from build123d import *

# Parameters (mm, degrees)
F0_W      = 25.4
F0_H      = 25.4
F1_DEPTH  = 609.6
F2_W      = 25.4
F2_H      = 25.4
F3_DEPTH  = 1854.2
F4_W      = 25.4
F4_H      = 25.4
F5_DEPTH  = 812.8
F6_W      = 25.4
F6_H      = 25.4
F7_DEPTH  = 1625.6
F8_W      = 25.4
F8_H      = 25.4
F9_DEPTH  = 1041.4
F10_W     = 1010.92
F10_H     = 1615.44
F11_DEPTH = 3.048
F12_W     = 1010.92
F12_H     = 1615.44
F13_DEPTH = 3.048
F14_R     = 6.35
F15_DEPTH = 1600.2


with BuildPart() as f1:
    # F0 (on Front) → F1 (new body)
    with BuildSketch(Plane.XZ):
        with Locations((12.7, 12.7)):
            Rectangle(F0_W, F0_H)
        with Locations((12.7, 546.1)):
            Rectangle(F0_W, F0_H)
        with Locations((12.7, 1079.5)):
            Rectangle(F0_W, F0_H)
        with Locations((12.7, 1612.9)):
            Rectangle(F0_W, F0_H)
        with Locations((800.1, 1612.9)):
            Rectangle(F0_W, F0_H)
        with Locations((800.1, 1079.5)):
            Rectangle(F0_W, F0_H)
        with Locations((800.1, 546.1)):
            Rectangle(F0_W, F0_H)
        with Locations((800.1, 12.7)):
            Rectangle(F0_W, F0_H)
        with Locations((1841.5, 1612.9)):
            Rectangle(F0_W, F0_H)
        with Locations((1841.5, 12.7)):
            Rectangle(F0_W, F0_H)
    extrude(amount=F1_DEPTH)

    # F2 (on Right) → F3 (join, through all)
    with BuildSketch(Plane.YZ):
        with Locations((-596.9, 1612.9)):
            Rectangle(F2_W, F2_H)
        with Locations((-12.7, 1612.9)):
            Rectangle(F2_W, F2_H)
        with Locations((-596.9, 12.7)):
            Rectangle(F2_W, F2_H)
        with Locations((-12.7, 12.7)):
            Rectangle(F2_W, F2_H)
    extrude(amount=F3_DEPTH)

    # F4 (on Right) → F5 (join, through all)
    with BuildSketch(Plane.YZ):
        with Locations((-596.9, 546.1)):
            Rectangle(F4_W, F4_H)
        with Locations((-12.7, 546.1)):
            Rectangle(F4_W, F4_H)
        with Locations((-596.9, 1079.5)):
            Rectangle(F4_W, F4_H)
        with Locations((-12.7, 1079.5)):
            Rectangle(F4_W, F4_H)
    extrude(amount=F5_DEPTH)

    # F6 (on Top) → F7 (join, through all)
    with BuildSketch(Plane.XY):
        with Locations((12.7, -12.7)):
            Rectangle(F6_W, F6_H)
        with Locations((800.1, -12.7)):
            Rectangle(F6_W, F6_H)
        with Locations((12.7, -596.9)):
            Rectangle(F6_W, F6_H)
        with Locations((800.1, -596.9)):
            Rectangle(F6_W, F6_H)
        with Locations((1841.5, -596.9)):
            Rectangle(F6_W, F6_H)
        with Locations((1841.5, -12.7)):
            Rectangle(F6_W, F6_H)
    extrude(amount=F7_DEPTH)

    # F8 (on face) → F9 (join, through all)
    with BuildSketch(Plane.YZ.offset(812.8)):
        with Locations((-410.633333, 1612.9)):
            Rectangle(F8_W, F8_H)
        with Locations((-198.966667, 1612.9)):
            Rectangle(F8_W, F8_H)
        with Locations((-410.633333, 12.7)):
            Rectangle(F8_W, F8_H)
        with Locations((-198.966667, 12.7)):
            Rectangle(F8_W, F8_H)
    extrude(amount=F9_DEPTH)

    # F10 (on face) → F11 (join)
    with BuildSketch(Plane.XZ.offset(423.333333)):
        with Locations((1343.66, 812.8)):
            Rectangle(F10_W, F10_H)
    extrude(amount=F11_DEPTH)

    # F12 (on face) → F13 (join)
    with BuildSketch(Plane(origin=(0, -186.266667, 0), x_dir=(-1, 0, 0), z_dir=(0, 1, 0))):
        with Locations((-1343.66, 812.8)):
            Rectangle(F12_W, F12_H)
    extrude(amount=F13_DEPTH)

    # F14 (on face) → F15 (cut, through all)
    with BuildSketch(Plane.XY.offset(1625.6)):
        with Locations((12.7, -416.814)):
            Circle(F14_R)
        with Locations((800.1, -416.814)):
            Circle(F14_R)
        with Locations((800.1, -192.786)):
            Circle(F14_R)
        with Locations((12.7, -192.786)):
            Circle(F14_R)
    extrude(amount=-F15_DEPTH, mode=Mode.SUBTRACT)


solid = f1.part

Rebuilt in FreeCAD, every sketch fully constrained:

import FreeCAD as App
import Part
import Sketcher

V = App.Vector
Q = App.Units.Quantity

doc = App.newDocument("Part")
params = doc.addObject("Spreadsheet::Sheet", "Params")
for row, (alias, value) in enumerate([
    ("sketch1_width", "1 in"),
    ("pad1_length", "24 in"),
    ("sketch2_width", "1 in"),
    ("pad2_length", "73 in"),
    ("sketch3_width", "1 in"),
    ("pad3_length", "32 in"),
    ("sketch4_width", "1 in"),
    ("pad4_length", "64 in"),
    ("sketch5_width", "1 in"),
    ("pad5_length", "41 in"),
    ("sketch6_width", "39.8 in"),
    ("sketch6_height", "63.6 in"),
    ("pad6_length", "0.12 in"),
    ("sketch7_width", "39.8 in"),
    ("sketch7_height", "63.6 in"),
    ("pad7_length", "0.12 in"),
    ("sketch8_diameter", "0.5 in"),
    ("pocket1_length", "63 in"),
], start=1):
    params.set(f"A{row}", alias)
    params.set(f"B{row}", "=" + value)
    params.setAlias(f"B{row}", alias)

body = doc.addObject("PartDesign::Body", "Body")
body.AllowCompound = True

# Sketch on XZ plane
sketch1 = body.newObject("Sketcher::SketchObject", "Sketch")
sketch1.AttachmentSupport = (doc.getObject("XZ_Plane"), [""])
sketch1.MapMode = "FlatFace"
sketch1.addGeometry([
    Part.LineSegment(V(0, 25.4, 0), V(0, 0, 0)),  # 0
    Part.LineSegment(V(0, 0, 0), V(25.4, 0, 0)),  # 1
    Part.LineSegment(V(25.4, 0, 0), V(25.4, 25.4, 0)),  # 2
    Part.LineSegment(V(25.4, 25.4, 0), V(0, 25.4, 0)),  # 3
    Part.LineSegment(V(0, 558.8, 0), V(0, 533.4, 0)),  # 4
    Part.LineSegment(V(0, 533.4, 0), V(25.4, 533.4, 0)),  # 5
    Part.LineSegment(V(25.4, 533.4, 0), V(25.4, 558.8, 0)),  # 6
    Part.LineSegment(V(25.4, 558.8, 0), V(0, 558.8, 0)),  # 7
    Part.LineSegment(V(0, 1092.2, 0), V(0, 1066.8, 0)),  # 8
    Part.LineSegment(V(0, 1066.8, 0), V(25.4, 1066.8, 0)),  # 9
    Part.LineSegment(V(25.4, 1066.8, 0), V(25.4, 1092.2, 0)),  # 10
    Part.LineSegment(V(25.4, 1092.2, 0), V(0, 1092.2, 0)),  # 11
    Part.LineSegment(V(0, 1625.6, 0), V(0, 1600.2, 0)),  # 12
    Part.LineSegment(V(0, 1600.2, 0), V(25.4, 1600.2, 0)),  # 13
    Part.LineSegment(V(25.4, 1600.2, 0), V(25.4, 1625.6, 0)),  # 14
    Part.LineSegment(V(25.4, 1625.6, 0), V(0, 1625.6, 0)),  # 15
    Part.LineSegment(V(787.4, 1625.6, 0), V(787.4, 1600.2, 0)),  # 16
    Part.LineSegment(V(787.4, 1600.2, 0), V(812.8, 1600.2, 0)),  # 17
    Part.LineSegment(V(812.8, 1600.2, 0), V(812.8, 1625.6, 0)),  # 18
    Part.LineSegment(V(812.8, 1625.6, 0), V(787.4, 1625.6, 0)),  # 19
    Part.LineSegment(V(787.4, 1092.2, 0), V(787.4, 1066.8, 0)),  # 20
    Part.LineSegment(V(787.4, 1066.8, 0), V(812.8, 1066.8, 0)),  # 21
    Part.LineSegment(V(812.8, 1066.8, 0), V(812.8, 1092.2, 0)),  # 22
    Part.LineSegment(V(812.8, 1092.2, 0), V(787.4, 1092.2, 0)),  # 23
    Part.LineSegment(V(787.4, 558.8, 0), V(787.4, 533.4, 0)),  # 24
    Part.LineSegment(V(787.4, 533.4, 0), V(812.8, 533.4, 0)),  # 25
    Part.LineSegment(V(812.8, 533.4, 0), V(812.8, 558.8, 0)),  # 26
    Part.LineSegment(V(812.8, 558.8, 0), V(787.4, 558.8, 0)),  # 27
    Part.LineSegment(V(787.4, 25.4, 0), V(787.4, 0, 0)),  # 28
    Part.LineSegment(V(787.4, 0, 0), V(812.8, 0, 0)),  # 29
    Part.LineSegment(V(812.8, 0, 0), V(812.8, 25.4, 0)),  # 30
    Part.LineSegment(V(812.8, 25.4, 0), V(787.4, 25.4, 0)),  # 31
    Part.LineSegment(V(1828.8, 1625.6, 0), V(1828.8, 1600.2, 0)),  # 32
    Part.LineSegment(V(1828.8, 1600.2, 0), V(1854.2, 1600.2, 0)),  # 33
    Part.LineSegment(V(1854.2, 1600.2, 0), V(1854.2, 1625.6, 0)),  # 34
    Part.LineSegment(V(1854.2, 1625.6, 0), V(1828.8, 1625.6, 0)),  # 35
    Part.LineSegment(V(1828.8, 25.4, 0), V(1828.8, 0, 0)),  # 36
    Part.LineSegment(V(1828.8, 0, 0), V(1854.2, 0, 0)),  # 37
    Part.LineSegment(V(1854.2, 0, 0), V(1854.2, 25.4, 0)),  # 38
    Part.LineSegment(V(1854.2, 25.4, 0), V(1828.8, 25.4, 0)),  # 39
], False)
sketch1.addConstraint([
    Sketcher.Constraint("Coincident", 0, 2, 1, 1),
    Sketcher.Constraint("Coincident", 1, 2, 2, 1),
    Sketcher.Constraint("Coincident", 2, 2, 3, 1),
    Sketcher.Constraint("Coincident", 3, 2, 0, 1),
    Sketcher.Constraint("Coincident", 4, 2, 5, 1),
    Sketcher.Constraint("Coincident", 5, 2, 6, 1),
    Sketcher.Constraint("Coincident", 6, 2, 7, 1),
    Sketcher.Constraint("Coincident", 7, 2, 4, 1),
    Sketcher.Constraint("Coincident", 8, 2, 9, 1),
    Sketcher.Constraint("Coincident", 9, 2, 10, 1),
    Sketcher.Constraint("Coincident", 10, 2, 11, 1),
    Sketcher.Constraint("Coincident", 11, 2, 8, 1),
    Sketcher.Constraint("Coincident", 12, 2, 13, 1),
    Sketcher.Constraint("Coincident", 13, 2, 14, 1),
    Sketcher.Constraint("Coincident", 14, 2, 15, 1),
    Sketcher.Constraint("Coincident", 15, 2, 12, 1),
    Sketcher.Constraint("Coincident", 16, 2, 17, 1),
    Sketcher.Constraint("Coincident", 17, 2, 18, 1),
    Sketcher.Constraint("Coincident", 18, 2, 19, 1),
    Sketcher.Constraint("Coincident", 19, 2, 16, 1),
    Sketcher.Constraint("Coincident", 20, 2, 21, 1),
    Sketcher.Constraint("Coincident", 21, 2, 22, 1),
    Sketcher.Constraint("Coincident", 22, 2, 23, 1),
    Sketcher.Constraint("Coincident", 23, 2, 20, 1),
    Sketcher.Constraint("Coincident", 24, 2, 25, 1),
    Sketcher.Constraint("Coincident", 25, 2, 26, 1),
    Sketcher.Constraint("Coincident", 26, 2, 27, 1),
    Sketcher.Constraint("Coincident", 27, 2, 24, 1),
    Sketcher.Constraint("Coincident", 28, 2, 29, 1),
    Sketcher.Constraint("Coincident", 29, 2, 30, 1),
    Sketcher.Constraint("Coincident", 30, 2, 31, 1),
    Sketcher.Constraint("Coincident", 31, 2, 28, 1),
    Sketcher.Constraint("Coincident", 32, 2, 33, 1),
    Sketcher.Constraint("Coincident", 33, 2, 34, 1),
    Sketcher.Constraint("Coincident", 34, 2, 35, 1),
    Sketcher.Constraint("Coincident", 35, 2, 32, 1),
    Sketcher.Constraint("Coincident", 36, 2, 37, 1),
    Sketcher.Constraint("Coincident", 37, 2, 38, 1),
    Sketcher.Constraint("Coincident", 38, 2, 39, 1),
    Sketcher.Constraint("Coincident", 39, 2, 36, 1),
    Sketcher.Constraint("Vertical", 0),
    Sketcher.Constraint("Horizontal", 1),
    Sketcher.Constraint("Vertical", 2),
    Sketcher.Constraint("Horizontal", 3),
    Sketcher.Constraint("Vertical", 4),
    Sketcher.Constraint("Horizontal", 5),
    Sketcher.Constraint("Vertical", 6),
    Sketcher.Constraint("Horizontal", 7),
    Sketcher.Constraint("Vertical", 8),
    Sketcher.Constraint("Horizontal", 9),
    Sketcher.Constraint("Vertical", 10),
    Sketcher.Constraint("Horizontal", 11),
    Sketcher.Constraint("Vertical", 12),
    Sketcher.Constraint("Horizontal", 13),
    Sketcher.Constraint("Vertical", 14),
    Sketcher.Constraint("Horizontal", 15),
    Sketcher.Constraint("Vertical", 16),
    Sketcher.Constraint("Horizontal", 17),
    Sketcher.Constraint("Vertical", 18),
    Sketcher.Constraint("Horizontal", 19),
    Sketcher.Constraint("Vertical", 20),
    Sketcher.Constraint("Horizontal", 21),
    Sketcher.Constraint("Vertical", 22),
    Sketcher.Constraint("Horizontal", 23),
    Sketcher.Constraint("Vertical", 24),
    Sketcher.Constraint("Horizontal", 25),
    Sketcher.Constraint("Vertical", 26),
    Sketcher.Constraint("Horizontal", 27),
    Sketcher.Constraint("Vertical", 28),
    Sketcher.Constraint("Horizontal", 29),
    Sketcher.Constraint("Vertical", 30),
    Sketcher.Constraint("Horizontal", 31),
    Sketcher.Constraint("Vertical", 32),
    Sketcher.Constraint("Horizontal", 33),
    Sketcher.Constraint("Vertical", 34),
    Sketcher.Constraint("Horizontal", 35),
    Sketcher.Constraint("Vertical", 36),
    Sketcher.Constraint("Horizontal", 37),
    Sketcher.Constraint("Vertical", 38),
    Sketcher.Constraint("Horizontal", 39),
    Sketcher.Constraint("Coincident", 0, 2, -1, 1),
    Sketcher.Constraint("PointOnObject", 4, 2, -2),
    Sketcher.Constraint("PointOnObject", 8, 2, -2),
    Sketcher.Constraint("PointOnObject", 12, 2, -2),
    Sketcher.Constraint("PointOnObject", 28, 2, -1),
    Sketcher.Constraint("PointOnObject", 36, 2, -1),
    Sketcher.Constraint("Horizontal", 13, 2, 16, 2),
    Sketcher.Constraint("Horizontal", 15, 2, 18, 2),
    Sketcher.Constraint("Horizontal", 9, 2, 20, 2),
    Sketcher.Constraint("Horizontal", 11, 2, 22, 2),
    Sketcher.Constraint("Horizontal", 5, 2, 24, 2),
    Sketcher.Constraint("Horizontal", 7, 2, 26, 2),
    Sketcher.Constraint("Horizontal", 3, 2, 30, 2),
    Sketcher.Constraint("Horizontal", 17, 2, 32, 2),
    Sketcher.Constraint("Horizontal", 19, 2, 34, 2),
    Sketcher.Constraint("Horizontal", 31, 2, 38, 2),
    Sketcher.Constraint("Vertical", 2, 2, 5, 2),
    Sketcher.Constraint("Vertical", 6, 2, 9, 2),
    Sketcher.Constraint("Vertical", 10, 2, 13, 2),
    Sketcher.Constraint("Vertical", 19, 2, 20, 2),
    Sketcher.Constraint("Vertical", 18, 2, 21, 2),
    Sketcher.Constraint("Vertical", 23, 2, 24, 2),
    Sketcher.Constraint("Vertical", 22, 2, 25, 2),
    Sketcher.Constraint("Vertical", 27, 2, 28, 2),
    Sketcher.Constraint("Vertical", 26, 2, 29, 2),
    Sketcher.Constraint("Vertical", 35, 2, 36, 2),
    Sketcher.Constraint("Vertical", 34, 2, 37, 2),
    Sketcher.Constraint("Equal", 15, 17),
    Sketcher.Constraint("Equal", 31, 33),
    Sketcher.Constraint("Equal", 39, 0),
    Sketcher.Constraint("Equal", 2, 4),
    Sketcher.Constraint("Equal", 6, 8),
    Sketcher.Constraint("Equal", 10, 12),
    Sketcher.Constraint("DistanceX", 1, 1, 1, 2, Q("1 in")),
    Sketcher.Constraint("DistanceY", -1, 1, 4, 2, Q("21 in")),
    Sketcher.Constraint("DistanceY", -1, 1, 8, 2, Q("42 in")),
    Sketcher.Constraint("DistanceY", -1, 1, 12, 2, Q("63 in")),
    Sketcher.Constraint("DistanceX", -1, 1, 16, 2, Q("31 in")),
    Sketcher.Constraint("DistanceX", -1, 1, 32, 2, Q("72 in")),
])
sketch1.setExpression("Constraints[113]", "Params.sketch1_width")
pad1 = body.newObject("PartDesign::Pad", "Pad")
pad1.Profile = sketch1
pad1.setExpression("Length", "Params.pad1_length")

# Sketch on YZ plane
sketch2 = body.newObject("Sketcher::SketchObject", "Sketch001")
sketch2.AttachmentSupport = (doc.getObject("YZ_Plane"), [""])
sketch2.MapMode = "FlatFace"
sketch2.addGeometry([
    Part.LineSegment(V(-609.6, 1625.6, 0), V(-609.6, 1600.2, 0)),  # 0
    Part.LineSegment(V(-609.6, 1600.2, 0), V(-584.2, 1600.2, 0)),  # 1
    Part.LineSegment(V(-584.2, 1600.2, 0), V(-584.2, 1625.6, 0)),  # 2
    Part.LineSegment(V(-584.2, 1625.6, 0), V(-609.6, 1625.6, 0)),  # 3
    Part.LineSegment(V(-25.4, 1625.6, 0), V(-25.4, 1600.2, 0)),  # 4
    Part.LineSegment(V(-25.4, 1600.2, 0), V(0, 1600.2, 0)),  # 5
    Part.LineSegment(V(0, 1600.2, 0), V(0, 1625.6, 0)),  # 6
    Part.LineSegment(V(0, 1625.6, 0), V(-25.4, 1625.6, 0)),  # 7
    Part.LineSegment(V(-609.6, 25.4, 0), V(-609.6, 0, 0)),  # 8
    Part.LineSegment(V(-609.6, 0, 0), V(-584.2, 0, 0)),  # 9
    Part.LineSegment(V(-584.2, 0, 0), V(-584.2, 25.4, 0)),  # 10
    Part.LineSegment(V(-584.2, 25.4, 0), V(-609.6, 25.4, 0)),  # 11
    Part.LineSegment(V(-25.4, 25.4, 0), V(-25.4, 0, 0)),  # 12
    Part.LineSegment(V(-25.4, 0, 0), V(0, 0, 0)),  # 13
    Part.LineSegment(V(0, 0, 0), V(0, 25.4, 0)),  # 14
    Part.LineSegment(V(0, 25.4, 0), V(-25.4, 25.4, 0)),  # 15
], False)
sketch2.addConstraint([
    Sketcher.Constraint("Coincident", 0, 2, 1, 1),
    Sketcher.Constraint("Coincident", 1, 2, 2, 1),
    Sketcher.Constraint("Coincident", 2, 2, 3, 1),
    Sketcher.Constraint("Coincident", 3, 2, 0, 1),
    Sketcher.Constraint("Coincident", 4, 2, 5, 1),
    Sketcher.Constraint("Coincident", 5, 2, 6, 1),
    Sketcher.Constraint("Coincident", 6, 2, 7, 1),
    Sketcher.Constraint("Coincident", 7, 2, 4, 1),
    Sketcher.Constraint("Coincident", 8, 2, 9, 1),
    Sketcher.Constraint("Coincident", 9, 2, 10, 1),
    Sketcher.Constraint("Coincident", 10, 2, 11, 1),
    Sketcher.Constraint("Coincident", 11, 2, 8, 1),
    Sketcher.Constraint("Coincident", 12, 2, 13, 1),
    Sketcher.Constraint("Coincident", 13, 2, 14, 1),
    Sketcher.Constraint("Coincident", 14, 2, 15, 1),
    Sketcher.Constraint("Coincident", 15, 2, 12, 1),
    Sketcher.Constraint("Vertical", 0),
    Sketcher.Constraint("Horizontal", 1),
    Sketcher.Constraint("Vertical", 2),
    Sketcher.Constraint("Horizontal", 3),
    Sketcher.Constraint("Vertical", 4),
    Sketcher.Constraint("Horizontal", 5),
    Sketcher.Constraint("Vertical", 6),
    Sketcher.Constraint("Horizontal", 7),
    Sketcher.Constraint("Vertical", 8),
    Sketcher.Constraint("Horizontal", 9),
    Sketcher.Constraint("Vertical", 10),
    Sketcher.Constraint("Horizontal", 11),
    Sketcher.Constraint("Vertical", 12),
    Sketcher.Constraint("Horizontal", 13),
    Sketcher.Constraint("Vertical", 14),
    Sketcher.Constraint("Horizontal", 15),
    Sketcher.Constraint("Coincident", 13, 2, -1, 1),
    Sketcher.Constraint("PointOnObject", 5, 2, -2),
    Sketcher.Constraint("PointOnObject", 8, 2, -1),
    Sketcher.Constraint("Horizontal", 1, 2, 4, 2),
    Sketcher.Constraint("Horizontal", 3, 2, 6, 2),
    Sketcher.Constraint("Horizontal", 11, 2, 14, 2),
    Sketcher.Constraint("Vertical", 3, 2, 8, 2),
    Sketcher.Constraint("Vertical", 2, 2, 9, 2),
    Sketcher.Constraint("Vertical", 7, 2, 12, 2),
    Sketcher.Constraint("Equal", 3, 5),
    Sketcher.Constraint("Equal", 15, 0),
    Sketcher.Constraint("Equal", 6, 8),
    Sketcher.Constraint("DistanceX", 1, 1, 1, 2, Q("1 in")),
    Sketcher.Constraint("DistanceX", 0, 2, -1, 1, Q("24 in")),
    Sketcher.Constraint("DistanceY", -1, 1, 0, 2, Q("63 in")),
])
sketch2.setExpression("Constraints[44]", "Params.sketch2_width")
pad2 = body.newObject("PartDesign::Pad", "Pad001")
pad2.Profile = sketch2
pad2.setExpression("Length", "Params.pad2_length")

# Sketch on YZ plane
sketch3 = body.newObject("Sketcher::SketchObject", "Sketch002")
sketch3.AttachmentSupport = (doc.getObject("YZ_Plane"), [""])
sketch3.MapMode = "FlatFace"
sketch3.addGeometry([
    Part.LineSegment(V(-609.6, 558.8, 0), V(-609.6, 533.4, 0)),  # 0
    Part.LineSegment(V(-609.6, 533.4, 0), V(-584.2, 533.4, 0)),  # 1
    Part.LineSegment(V(-584.2, 533.4, 0), V(-584.2, 558.8, 0)),  # 2
    Part.LineSegment(V(-584.2, 558.8, 0), V(-609.6, 558.8, 0)),  # 3
    Part.LineSegment(V(-25.4, 558.8, 0), V(-25.4, 533.4, 0)),  # 4
    Part.LineSegment(V(-25.4, 533.4, 0), V(0, 533.4, 0)),  # 5
    Part.LineSegment(V(0, 533.4, 0), V(0, 558.8, 0)),  # 6
    Part.LineSegment(V(0, 558.8, 0), V(-25.4, 558.8, 0)),  # 7
    Part.LineSegment(V(-609.6, 1092.2, 0), V(-609.6, 1066.8, 0)),  # 8
    Part.LineSegment(V(-609.6, 1066.8, 0), V(-584.2, 1066.8, 0)),  # 9
    Part.LineSegment(V(-584.2, 1066.8, 0), V(-584.2, 1092.2, 0)),  # 10
    Part.LineSegment(V(-584.2, 1092.2, 0), V(-609.6, 1092.2, 0)),  # 11
    Part.LineSegment(V(-25.4, 1092.2, 0), V(-25.4, 1066.8, 0)),  # 12
    Part.LineSegment(V(-25.4, 1066.8, 0), V(0, 1066.8, 0)),  # 13
    Part.LineSegment(V(0, 1066.8, 0), V(0, 1092.2, 0)),  # 14
    Part.LineSegment(V(0, 1092.2, 0), V(-25.4, 1092.2, 0)),  # 15
], False)
sketch3.addConstraint([
    Sketcher.Constraint("Coincident", 0, 2, 1, 1),
    Sketcher.Constraint("Coincident", 1, 2, 2, 1),
    Sketcher.Constraint("Coincident", 2, 2, 3, 1),
    Sketcher.Constraint("Coincident", 3, 2, 0, 1),
    Sketcher.Constraint("Coincident", 4, 2, 5, 1),
    Sketcher.Constraint("Coincident", 5, 2, 6, 1),
    Sketcher.Constraint("Coincident", 6, 2, 7, 1),
    Sketcher.Constraint("Coincident", 7, 2, 4, 1),
    Sketcher.Constraint("Coincident", 8, 2, 9, 1),
    Sketcher.Constraint("Coincident", 9, 2, 10, 1),
    Sketcher.Constraint("Coincident", 10, 2, 11, 1),
    Sketcher.Constraint("Coincident", 11, 2, 8, 1),
    Sketcher.Constraint("Coincident", 12, 2, 13, 1),
    Sketcher.Constraint("Coincident", 13, 2, 14, 1),
    Sketcher.Constraint("Coincident", 14, 2, 15, 1),
    Sketcher.Constraint("Coincident", 15, 2, 12, 1),
    Sketcher.Constraint("Vertical", 0),
    Sketcher.Constraint("Horizontal", 1),
    Sketcher.Constraint("Vertical", 2),
    Sketcher.Constraint("Horizontal", 3),
    Sketcher.Constraint("Vertical", 4),
    Sketcher.Constraint("Horizontal", 5),
    Sketcher.Constraint("Vertical", 6),
    Sketcher.Constraint("Horizontal", 7),
    Sketcher.Constraint("Vertical", 8),
    Sketcher.Constraint("Horizontal", 9),
    Sketcher.Constraint("Vertical", 10),
    Sketcher.Constraint("Horizontal", 11),
    Sketcher.Constraint("Vertical", 12),
    Sketcher.Constraint("Horizontal", 13),
    Sketcher.Constraint("Vertical", 14),
    Sketcher.Constraint("Horizontal", 15),
    Sketcher.Constraint("PointOnObject", 5, 2, -2),
    Sketcher.Constraint("PointOnObject", 13, 2, -2),
    Sketcher.Constraint("Horizontal", 1, 2, 4, 2),
    Sketcher.Constraint("Horizontal", 3, 2, 6, 2),
    Sketcher.Constraint("Horizontal", 9, 2, 12, 2),
    Sketcher.Constraint("Horizontal", 11, 2, 14, 2),
    Sketcher.Constraint("Vertical", 3, 2, 8, 2),
    Sketcher.Constraint("Vertical", 2, 2, 9, 2),
    Sketcher.Constraint("Vertical", 7, 2, 12, 2),
    Sketcher.Constraint("Equal", 3, 5),
    Sketcher.Constraint("Equal", 15, 0),
    Sketcher.Constraint("Equal", 6, 8),
    Sketcher.Constraint("DistanceX", 1, 1, 1, 2, Q("1 in")),
    Sketcher.Constraint("DistanceX", 0, 2, -1, 1, Q("24 in")),
    Sketcher.Constraint("DistanceY", -1, 1, 0, 2, Q("21 in")),
    Sketcher.Constraint("DistanceY", -1, 1, 8, 2, Q("42 in")),
])
sketch3.setExpression("Constraints[44]", "Params.sketch3_width")
pad3 = body.newObject("PartDesign::Pad", "Pad002")
pad3.Profile = sketch3
pad3.setExpression("Length", "Params.pad3_length")

# Sketch on XY plane
sketch4 = body.newObject("Sketcher::SketchObject", "Sketch003")
sketch4.AttachmentSupport = (doc.getObject("XY_Plane"), [""])
sketch4.MapMode = "FlatFace"
sketch4.addGeometry([
    Part.LineSegment(V(0, 0, 0), V(0, -25.4, 0)),  # 0
    Part.LineSegment(V(0, -25.4, 0), V(25.4, -25.4, 0)),  # 1
    Part.LineSegment(V(25.4, -25.4, 0), V(25.4, 0, 0)),  # 2
    Part.LineSegment(V(25.4, 0, 0), V(0, 0, 0)),  # 3
    Part.LineSegment(V(787.4, 0, 0), V(787.4, -25.4, 0)),  # 4
    Part.LineSegment(V(787.4, -25.4, 0), V(812.8, -25.4, 0)),  # 5
    Part.LineSegment(V(812.8, -25.4, 0), V(812.8, 0, 0)),  # 6
    Part.LineSegment(V(812.8, 0, 0), V(787.4, 0, 0)),  # 7
    Part.LineSegment(V(0, -584.2, 0), V(0, -609.6, 0)),  # 8
    Part.LineSegment(V(0, -609.6, 0), V(25.4, -609.6, 0)),  # 9
    Part.LineSegment(V(25.4, -609.6, 0), V(25.4, -584.2, 0)),  # 10
    Part.LineSegment(V(25.4, -584.2, 0), V(0, -584.2, 0)),  # 11
    Part.LineSegment(V(787.4, -584.2, 0), V(787.4, -609.6, 0)),  # 12
    Part.LineSegment(V(787.4, -609.6, 0), V(812.8, -609.6, 0)),  # 13
    Part.LineSegment(V(812.8, -609.6, 0), V(812.8, -584.2, 0)),  # 14
    Part.LineSegment(V(812.8, -584.2, 0), V(787.4, -584.2, 0)),  # 15
    Part.LineSegment(V(1828.8, -584.2, 0), V(1828.8, -609.6, 0)),  # 16
    Part.LineSegment(V(1828.8, -609.6, 0), V(1854.2, -609.6, 0)),  # 17
    Part.LineSegment(V(1854.2, -609.6, 0), V(1854.2, -584.2, 0)),  # 18
    Part.LineSegment(V(1854.2, -584.2, 0), V(1828.8, -584.2, 0)),  # 19
    Part.LineSegment(V(1828.8, 0, 0), V(1828.8, -25.4, 0)),  # 20
    Part.LineSegment(V(1828.8, -25.4, 0), V(1854.2, -25.4, 0)),  # 21
    Part.LineSegment(V(1854.2, -25.4, 0), V(1854.2, 0, 0)),  # 22
    Part.LineSegment(V(1854.2, 0, 0), V(1828.8, 0, 0)),  # 23
], False)
sketch4.addConstraint([
    Sketcher.Constraint("Coincident", 0, 2, 1, 1),
    Sketcher.Constraint("Coincident", 1, 2, 2, 1),
    Sketcher.Constraint("Coincident", 2, 2, 3, 1),
    Sketcher.Constraint("Coincident", 3, 2, 0, 1),
    Sketcher.Constraint("Coincident", 4, 2, 5, 1),
    Sketcher.Constraint("Coincident", 5, 2, 6, 1),
    Sketcher.Constraint("Coincident", 6, 2, 7, 1),
    Sketcher.Constraint("Coincident", 7, 2, 4, 1),
    Sketcher.Constraint("Coincident", 8, 2, 9, 1),
    Sketcher.Constraint("Coincident", 9, 2, 10, 1),
    Sketcher.Constraint("Coincident", 10, 2, 11, 1),
    Sketcher.Constraint("Coincident", 11, 2, 8, 1),
    Sketcher.Constraint("Coincident", 12, 2, 13, 1),
    Sketcher.Constraint("Coincident", 13, 2, 14, 1),
    Sketcher.Constraint("Coincident", 14, 2, 15, 1),
    Sketcher.Constraint("Coincident", 15, 2, 12, 1),
    Sketcher.Constraint("Coincident", 16, 2, 17, 1),
    Sketcher.Constraint("Coincident", 17, 2, 18, 1),
    Sketcher.Constraint("Coincident", 18, 2, 19, 1),
    Sketcher.Constraint("Coincident", 19, 2, 16, 1),
    Sketcher.Constraint("Coincident", 20, 2, 21, 1),
    Sketcher.Constraint("Coincident", 21, 2, 22, 1),
    Sketcher.Constraint("Coincident", 22, 2, 23, 1),
    Sketcher.Constraint("Coincident", 23, 2, 20, 1),
    Sketcher.Constraint("Vertical", 0),
    Sketcher.Constraint("Horizontal", 1),
    Sketcher.Constraint("Vertical", 2),
    Sketcher.Constraint("Horizontal", 3),
    Sketcher.Constraint("Vertical", 4),
    Sketcher.Constraint("Horizontal", 5),
    Sketcher.Constraint("Vertical", 6),
    Sketcher.Constraint("Horizontal", 7),
    Sketcher.Constraint("Vertical", 8),
    Sketcher.Constraint("Horizontal", 9),
    Sketcher.Constraint("Vertical", 10),
    Sketcher.Constraint("Horizontal", 11),
    Sketcher.Constraint("Vertical", 12),
    Sketcher.Constraint("Horizontal", 13),
    Sketcher.Constraint("Vertical", 14),
    Sketcher.Constraint("Horizontal", 15),
    Sketcher.Constraint("Vertical", 16),
    Sketcher.Constraint("Horizontal", 17),
    Sketcher.Constraint("Vertical", 18),
    Sketcher.Constraint("Horizontal", 19),
    Sketcher.Constraint("Vertical", 20),
    Sketcher.Constraint("Horizontal", 21),
    Sketcher.Constraint("Vertical", 22),
    Sketcher.Constraint("Horizontal", 23),
    Sketcher.Constraint("Coincident", 3, 2, -1, 1),
    Sketcher.Constraint("PointOnObject", 6, 2, -1),
    Sketcher.Constraint("PointOnObject", 8, 2, -2),
    Sketcher.Constraint("PointOnObject", 22, 2, -1),
    Sketcher.Constraint("Horizontal", 1, 2, 4, 2),
    Sketcher.Constraint("Horizontal", 9, 2, 12, 2),
    Sketcher.Constraint("Horizontal", 11, 2, 14, 2),
    Sketcher.Constraint("Horizontal", 13, 2, 16, 2),
    Sketcher.Constraint("Horizontal", 15, 2, 18, 2),
    Sketcher.Constraint("Horizontal", 5, 2, 20, 2),
    Sketcher.Constraint("Vertical", 2, 2, 9, 2),
    Sketcher.Constraint("Vertical", 7, 2, 12, 2),
    Sketcher.Constraint("Vertical", 6, 2, 13, 2),
    Sketcher.Constraint("Vertical", 19, 2, 20, 2),
    Sketcher.Constraint("Vertical", 18, 2, 21, 2),
    Sketcher.Constraint("Equal", 3, 5),
    Sketcher.Constraint("Equal", 15, 17),
    Sketcher.Constraint("Equal", 23, 0),
    Sketcher.Constraint("Equal", 6, 8),
    Sketcher.Constraint("DistanceX", 1, 1, 1, 2, Q("1 in")),
    Sketcher.Constraint("DistanceX", -1, 1, 4, 2, Q("31 in")),
    Sketcher.Constraint("DistanceY", 8, 2, -1, 1, Q("24 in")),
    Sketcher.Constraint("DistanceX", -1, 1, 16, 2, Q("72 in")),
])
sketch4.setExpression("Constraints[67]", "Params.sketch4_width")
pad4 = body.newObject("PartDesign::Pad", "Pad003")
pad4.Profile = sketch4
pad4.setExpression("Length", "Params.pad4_length")

# Sketch on YZ plane
sketch5 = body.newObject("Sketcher::SketchObject", "Sketch004")
sketch5.AttachmentSupport = (doc.getObject("YZ_Plane"), [""])
sketch5.MapMode = "FlatFace"
sketch5.AttachmentOffset = App.Placement(V(0, 0, 32 * 25.4), App.Rotation())
sketch5.addGeometry([
    Part.LineSegment(V(-423.333333, 1625.6, 0), V(-423.333333, 1600.2, 0)),  # 0
    Part.LineSegment(V(-423.333333, 1600.2, 0), V(-397.933333, 1600.2, 0)),  # 1
    Part.LineSegment(V(-397.933333, 1600.2, 0), V(-397.933333, 1625.6, 0)),  # 2
    Part.LineSegment(V(-397.933333, 1625.6, 0), V(-423.333333, 1625.6, 0)),  # 3
    Part.LineSegment(V(-211.666667, 1625.6, 0), V(-211.666667, 1600.2, 0)),  # 4
    Part.LineSegment(V(-211.666667, 1600.2, 0), V(-186.266667, 1600.2, 0)),  # 5
    Part.LineSegment(V(-186.266667, 1600.2, 0), V(-186.266667, 1625.6, 0)),  # 6
    Part.LineSegment(V(-186.266667, 1625.6, 0), V(-211.666667, 1625.6, 0)),  # 7
    Part.LineSegment(V(-423.333333, 25.4, 0), V(-423.333333, 0, 0)),  # 8
    Part.LineSegment(V(-423.333333, 0, 0), V(-397.933333, 0, 0)),  # 9
    Part.LineSegment(V(-397.933333, 0, 0), V(-397.933333, 25.4, 0)),  # 10
    Part.LineSegment(V(-397.933333, 25.4, 0), V(-423.333333, 25.4, 0)),  # 11
    Part.LineSegment(V(-211.666667, 25.4, 0), V(-211.666667, 0, 0)),  # 12
    Part.LineSegment(V(-211.666667, 0, 0), V(-186.266667, 0, 0)),  # 13
    Part.LineSegment(V(-186.266667, 0, 0), V(-186.266667, 25.4, 0)),  # 14
    Part.LineSegment(V(-186.266667, 25.4, 0), V(-211.666667, 25.4, 0)),  # 15
], False)
sketch5.addConstraint([
    Sketcher.Constraint("Coincident", 0, 2, 1, 1),
    Sketcher.Constraint("Coincident", 1, 2, 2, 1),
    Sketcher.Constraint("Coincident", 2, 2, 3, 1),
    Sketcher.Constraint("Coincident", 3, 2, 0, 1),
    Sketcher.Constraint("Coincident", 4, 2, 5, 1),
    Sketcher.Constraint("Coincident", 5, 2, 6, 1),
    Sketcher.Constraint("Coincident", 6, 2, 7, 1),
    Sketcher.Constraint("Coincident", 7, 2, 4, 1),
    Sketcher.Constraint("Coincident", 8, 2, 9, 1),
    Sketcher.Constraint("Coincident", 9, 2, 10, 1),
    Sketcher.Constraint("Coincident", 10, 2, 11, 1),
    Sketcher.Constraint("Coincident", 11, 2, 8, 1),
    Sketcher.Constraint("Coincident", 12, 2, 13, 1),
    Sketcher.Constraint("Coincident", 13, 2, 14, 1),
    Sketcher.Constraint("Coincident", 14, 2, 15, 1),
    Sketcher.Constraint("Coincident", 15, 2, 12, 1),
    Sketcher.Constraint("Vertical", 0),
    Sketcher.Constraint("Horizontal", 1),
    Sketcher.Constraint("Vertical", 2),
    Sketcher.Constraint("Horizontal", 3),
    Sketcher.Constraint("Vertical", 4),
    Sketcher.Constraint("Horizontal", 5),
    Sketcher.Constraint("Vertical", 6),
    Sketcher.Constraint("Horizontal", 7),
    Sketcher.Constraint("Vertical", 8),
    Sketcher.Constraint("Horizontal", 9),
    Sketcher.Constraint("Vertical", 10),
    Sketcher.Constraint("Horizontal", 11),
    Sketcher.Constraint("Vertical", 12),
    Sketcher.Constraint("Horizontal", 13),
    Sketcher.Constraint("Vertical", 14),
    Sketcher.Constraint("Horizontal", 15),
    Sketcher.Constraint("PointOnObject", 8, 2, -1),
    Sketcher.Constraint("PointOnObject", 12, 2, -1),
    Sketcher.Constraint("Horizontal", 1, 2, 4, 2),
    Sketcher.Constraint("Horizontal", 3, 2, 6, 2),
    Sketcher.Constraint("Horizontal", 11, 2, 14, 2),
    Sketcher.Constraint("Vertical", 3, 2, 8, 2),
    Sketcher.Constraint("Vertical", 2, 2, 9, 2),
    Sketcher.Constraint("Vertical", 7, 2, 12, 2),
    Sketcher.Constraint("Vertical", 6, 2, 13, 2),
    Sketcher.Constraint("Equal", 3, 5),
    Sketcher.Constraint("Equal", 15, 0),
    Sketcher.Constraint("Equal", 6, 8),
    Sketcher.Constraint("DistanceX", 1, 1, 1, 2, Q("1 in")),
    Sketcher.Constraint("DistanceY", -1, 1, 0, 2, Q("63 in")),
    Sketcher.Constraint("DistanceX", 0, 2, -1, 1, 423.333333),
    Sketcher.Constraint("DistanceX", 4, 2, -1, 1, 211.666667),
])
sketch5.setExpression("Constraints[44]", "Params.sketch5_width")
pad5 = body.newObject("PartDesign::Pad", "Pad004")
pad5.Profile = sketch5
pad5.setExpression("Length", "Params.pad5_length")

# Sketch on XZ plane
sketch6 = body.newObject("Sketcher::SketchObject", "Sketch005")
sketch6.AttachmentSupport = (doc.getObject("XZ_Plane"), [""])
sketch6.MapMode = "FlatFace"
sketch6.AttachmentOffset = App.Placement(V(0, 0, 423.333333), App.Rotation())
sketch6.addGeometry([
    Part.LineSegment(V(838.2, 1620.52, 0), V(838.2, 5.08, 0)),
    Part.LineSegment(V(838.2, 5.08, 0), V(1849.12, 5.08, 0)),
    Part.LineSegment(V(1849.12, 5.08, 0), V(1849.12, 1620.52, 0)),
    Part.LineSegment(V(1849.12, 1620.52, 0), V(838.2, 1620.52, 0)),
], False)
sketch6.addConstraint([
    Sketcher.Constraint("Coincident", 0, 2, 1, 1),
    Sketcher.Constraint("Coincident", 1, 2, 2, 1),
    Sketcher.Constraint("Coincident", 2, 2, 3, 1),
    Sketcher.Constraint("Coincident", 3, 2, 0, 1),
    Sketcher.Constraint("Vertical", 0),
    Sketcher.Constraint("Horizontal", 1),
    Sketcher.Constraint("Vertical", 2),
    Sketcher.Constraint("Horizontal", 3),
    Sketcher.Constraint("DistanceX", 1, 1, 1, 2, Q("39.8 in")),
    Sketcher.Constraint("DistanceY", 0, 2, 0, 1, Q("63.6 in")),
    Sketcher.Constraint("DistanceX", -1, 1, 0, 2, Q("33 in")),
    Sketcher.Constraint("DistanceY", -1, 1, 0, 2, Q("0.2 in")),
])
sketch6.setExpression("Constraints[8]", "Params.sketch6_width")
sketch6.setExpression("Constraints[9]", "Params.sketch6_height")
pad6 = body.newObject("PartDesign::Pad", "Pad005")
pad6.Profile = sketch6
pad6.setExpression("Length", "Params.pad6_length")

# Sketch on XZ plane
sketch7 = body.newObject("Sketcher::SketchObject", "Sketch006")
sketch7.AttachmentSupport = (doc.getObject("XZ_Plane"), [""])
sketch7.MapMode = "FlatFace"
sketch7.AttachmentOffset = App.Placement(V(0, 0, 186.266667), App.Rotation())
sketch7.addGeometry([
    Part.LineSegment(V(1849.12, 1620.52, 0), V(1849.12, 5.08, 0)),
    Part.LineSegment(V(1849.12, 5.08, 0), V(838.2, 5.08, 0)),
    Part.LineSegment(V(838.2, 5.08, 0), V(838.2, 1620.52, 0)),
    Part.LineSegment(V(838.2, 1620.52, 0), V(1849.12, 1620.52, 0)),
], False)
sketch7.addConstraint([
    Sketcher.Constraint("Coincident", 0, 2, 1, 1),
    Sketcher.Constraint("Coincident", 1, 2, 2, 1),
    Sketcher.Constraint("Coincident", 2, 2, 3, 1),
    Sketcher.Constraint("Coincident", 3, 2, 0, 1),
    Sketcher.Constraint("Vertical", 0),
    Sketcher.Constraint("Horizontal", 1),
    Sketcher.Constraint("Vertical", 2),
    Sketcher.Constraint("Horizontal", 3),
    Sketcher.Constraint("DistanceX", 1, 2, 1, 1, Q("39.8 in")),
    Sketcher.Constraint("DistanceY", 0, 2, 0, 1, Q("63.6 in")),
    Sketcher.Constraint("DistanceX", -1, 1, 1, 2, Q("33 in")),
    Sketcher.Constraint("DistanceY", -1, 1, 0, 2, Q("0.2 in")),
])
sketch7.setExpression("Constraints[8]", "Params.sketch7_width")
sketch7.setExpression("Constraints[9]", "Params.sketch7_height")
pad7 = body.newObject("PartDesign::Pad", "Pad006")
pad7.Profile = sketch7
pad7.setExpression("Length", "Params.pad7_length")
pad7.Reversed = True

# Sketch on XY plane
sketch8 = body.newObject("Sketcher::SketchObject", "Sketch007")
sketch8.AttachmentSupport = (doc.getObject("XY_Plane"), [""])
sketch8.MapMode = "FlatFace"
sketch8.AttachmentOffset = App.Placement(V(0, 0, 64 * 25.4), App.Rotation())
sketch8.addGeometry([
    Part.Circle(V(12.7, -416.814, 0), V(0, 0, 1), 6.35),
    Part.Circle(V(800.1, -416.814, 0), V(0, 0, 1), 6.35),
    Part.Circle(V(800.1, -192.786, 0), V(0, 0, 1), 6.35),
    Part.Circle(V(12.7, -192.786, 0), V(0, 0, 1), 6.35),
], False)
sketch8.addConstraint([
    Sketcher.Constraint("Equal", 0, 1),
    Sketcher.Constraint("Equal", 1, 2),
    Sketcher.Constraint("Equal", 2, 3),
    Sketcher.Constraint("Horizontal", 0, 3, 1, 3),
    Sketcher.Constraint("Horizontal", 2, 3, 3, 3),
    Sketcher.Constraint("Vertical", 1, 3, 2, 3),
    Sketcher.Constraint("Vertical", 0, 3, 3, 3),
    Sketcher.Constraint("Diameter", 0, Q("0.5 in")),
    Sketcher.Constraint("DistanceX", 0, 3, 1, 3, Q("31 in")),
    Sketcher.Constraint("DistanceX", -1, 1, 0, 3, Q("0.5 in")),
    Sketcher.Constraint("DistanceY", 0, 3, -1, 1, Q("16.41 in")),
    Sketcher.Constraint("DistanceY", 2, 3, -1, 1, Q("7.59 in")),
])
sketch8.setExpression("Constraints[7]", "Params.sketch8_diameter")
pocket1 = body.newObject("PartDesign::Pocket", "Pocket")
pocket1.Profile = sketch8
pocket1.setExpression("Length", "Params.pocket1_length")

doc.recompute()
